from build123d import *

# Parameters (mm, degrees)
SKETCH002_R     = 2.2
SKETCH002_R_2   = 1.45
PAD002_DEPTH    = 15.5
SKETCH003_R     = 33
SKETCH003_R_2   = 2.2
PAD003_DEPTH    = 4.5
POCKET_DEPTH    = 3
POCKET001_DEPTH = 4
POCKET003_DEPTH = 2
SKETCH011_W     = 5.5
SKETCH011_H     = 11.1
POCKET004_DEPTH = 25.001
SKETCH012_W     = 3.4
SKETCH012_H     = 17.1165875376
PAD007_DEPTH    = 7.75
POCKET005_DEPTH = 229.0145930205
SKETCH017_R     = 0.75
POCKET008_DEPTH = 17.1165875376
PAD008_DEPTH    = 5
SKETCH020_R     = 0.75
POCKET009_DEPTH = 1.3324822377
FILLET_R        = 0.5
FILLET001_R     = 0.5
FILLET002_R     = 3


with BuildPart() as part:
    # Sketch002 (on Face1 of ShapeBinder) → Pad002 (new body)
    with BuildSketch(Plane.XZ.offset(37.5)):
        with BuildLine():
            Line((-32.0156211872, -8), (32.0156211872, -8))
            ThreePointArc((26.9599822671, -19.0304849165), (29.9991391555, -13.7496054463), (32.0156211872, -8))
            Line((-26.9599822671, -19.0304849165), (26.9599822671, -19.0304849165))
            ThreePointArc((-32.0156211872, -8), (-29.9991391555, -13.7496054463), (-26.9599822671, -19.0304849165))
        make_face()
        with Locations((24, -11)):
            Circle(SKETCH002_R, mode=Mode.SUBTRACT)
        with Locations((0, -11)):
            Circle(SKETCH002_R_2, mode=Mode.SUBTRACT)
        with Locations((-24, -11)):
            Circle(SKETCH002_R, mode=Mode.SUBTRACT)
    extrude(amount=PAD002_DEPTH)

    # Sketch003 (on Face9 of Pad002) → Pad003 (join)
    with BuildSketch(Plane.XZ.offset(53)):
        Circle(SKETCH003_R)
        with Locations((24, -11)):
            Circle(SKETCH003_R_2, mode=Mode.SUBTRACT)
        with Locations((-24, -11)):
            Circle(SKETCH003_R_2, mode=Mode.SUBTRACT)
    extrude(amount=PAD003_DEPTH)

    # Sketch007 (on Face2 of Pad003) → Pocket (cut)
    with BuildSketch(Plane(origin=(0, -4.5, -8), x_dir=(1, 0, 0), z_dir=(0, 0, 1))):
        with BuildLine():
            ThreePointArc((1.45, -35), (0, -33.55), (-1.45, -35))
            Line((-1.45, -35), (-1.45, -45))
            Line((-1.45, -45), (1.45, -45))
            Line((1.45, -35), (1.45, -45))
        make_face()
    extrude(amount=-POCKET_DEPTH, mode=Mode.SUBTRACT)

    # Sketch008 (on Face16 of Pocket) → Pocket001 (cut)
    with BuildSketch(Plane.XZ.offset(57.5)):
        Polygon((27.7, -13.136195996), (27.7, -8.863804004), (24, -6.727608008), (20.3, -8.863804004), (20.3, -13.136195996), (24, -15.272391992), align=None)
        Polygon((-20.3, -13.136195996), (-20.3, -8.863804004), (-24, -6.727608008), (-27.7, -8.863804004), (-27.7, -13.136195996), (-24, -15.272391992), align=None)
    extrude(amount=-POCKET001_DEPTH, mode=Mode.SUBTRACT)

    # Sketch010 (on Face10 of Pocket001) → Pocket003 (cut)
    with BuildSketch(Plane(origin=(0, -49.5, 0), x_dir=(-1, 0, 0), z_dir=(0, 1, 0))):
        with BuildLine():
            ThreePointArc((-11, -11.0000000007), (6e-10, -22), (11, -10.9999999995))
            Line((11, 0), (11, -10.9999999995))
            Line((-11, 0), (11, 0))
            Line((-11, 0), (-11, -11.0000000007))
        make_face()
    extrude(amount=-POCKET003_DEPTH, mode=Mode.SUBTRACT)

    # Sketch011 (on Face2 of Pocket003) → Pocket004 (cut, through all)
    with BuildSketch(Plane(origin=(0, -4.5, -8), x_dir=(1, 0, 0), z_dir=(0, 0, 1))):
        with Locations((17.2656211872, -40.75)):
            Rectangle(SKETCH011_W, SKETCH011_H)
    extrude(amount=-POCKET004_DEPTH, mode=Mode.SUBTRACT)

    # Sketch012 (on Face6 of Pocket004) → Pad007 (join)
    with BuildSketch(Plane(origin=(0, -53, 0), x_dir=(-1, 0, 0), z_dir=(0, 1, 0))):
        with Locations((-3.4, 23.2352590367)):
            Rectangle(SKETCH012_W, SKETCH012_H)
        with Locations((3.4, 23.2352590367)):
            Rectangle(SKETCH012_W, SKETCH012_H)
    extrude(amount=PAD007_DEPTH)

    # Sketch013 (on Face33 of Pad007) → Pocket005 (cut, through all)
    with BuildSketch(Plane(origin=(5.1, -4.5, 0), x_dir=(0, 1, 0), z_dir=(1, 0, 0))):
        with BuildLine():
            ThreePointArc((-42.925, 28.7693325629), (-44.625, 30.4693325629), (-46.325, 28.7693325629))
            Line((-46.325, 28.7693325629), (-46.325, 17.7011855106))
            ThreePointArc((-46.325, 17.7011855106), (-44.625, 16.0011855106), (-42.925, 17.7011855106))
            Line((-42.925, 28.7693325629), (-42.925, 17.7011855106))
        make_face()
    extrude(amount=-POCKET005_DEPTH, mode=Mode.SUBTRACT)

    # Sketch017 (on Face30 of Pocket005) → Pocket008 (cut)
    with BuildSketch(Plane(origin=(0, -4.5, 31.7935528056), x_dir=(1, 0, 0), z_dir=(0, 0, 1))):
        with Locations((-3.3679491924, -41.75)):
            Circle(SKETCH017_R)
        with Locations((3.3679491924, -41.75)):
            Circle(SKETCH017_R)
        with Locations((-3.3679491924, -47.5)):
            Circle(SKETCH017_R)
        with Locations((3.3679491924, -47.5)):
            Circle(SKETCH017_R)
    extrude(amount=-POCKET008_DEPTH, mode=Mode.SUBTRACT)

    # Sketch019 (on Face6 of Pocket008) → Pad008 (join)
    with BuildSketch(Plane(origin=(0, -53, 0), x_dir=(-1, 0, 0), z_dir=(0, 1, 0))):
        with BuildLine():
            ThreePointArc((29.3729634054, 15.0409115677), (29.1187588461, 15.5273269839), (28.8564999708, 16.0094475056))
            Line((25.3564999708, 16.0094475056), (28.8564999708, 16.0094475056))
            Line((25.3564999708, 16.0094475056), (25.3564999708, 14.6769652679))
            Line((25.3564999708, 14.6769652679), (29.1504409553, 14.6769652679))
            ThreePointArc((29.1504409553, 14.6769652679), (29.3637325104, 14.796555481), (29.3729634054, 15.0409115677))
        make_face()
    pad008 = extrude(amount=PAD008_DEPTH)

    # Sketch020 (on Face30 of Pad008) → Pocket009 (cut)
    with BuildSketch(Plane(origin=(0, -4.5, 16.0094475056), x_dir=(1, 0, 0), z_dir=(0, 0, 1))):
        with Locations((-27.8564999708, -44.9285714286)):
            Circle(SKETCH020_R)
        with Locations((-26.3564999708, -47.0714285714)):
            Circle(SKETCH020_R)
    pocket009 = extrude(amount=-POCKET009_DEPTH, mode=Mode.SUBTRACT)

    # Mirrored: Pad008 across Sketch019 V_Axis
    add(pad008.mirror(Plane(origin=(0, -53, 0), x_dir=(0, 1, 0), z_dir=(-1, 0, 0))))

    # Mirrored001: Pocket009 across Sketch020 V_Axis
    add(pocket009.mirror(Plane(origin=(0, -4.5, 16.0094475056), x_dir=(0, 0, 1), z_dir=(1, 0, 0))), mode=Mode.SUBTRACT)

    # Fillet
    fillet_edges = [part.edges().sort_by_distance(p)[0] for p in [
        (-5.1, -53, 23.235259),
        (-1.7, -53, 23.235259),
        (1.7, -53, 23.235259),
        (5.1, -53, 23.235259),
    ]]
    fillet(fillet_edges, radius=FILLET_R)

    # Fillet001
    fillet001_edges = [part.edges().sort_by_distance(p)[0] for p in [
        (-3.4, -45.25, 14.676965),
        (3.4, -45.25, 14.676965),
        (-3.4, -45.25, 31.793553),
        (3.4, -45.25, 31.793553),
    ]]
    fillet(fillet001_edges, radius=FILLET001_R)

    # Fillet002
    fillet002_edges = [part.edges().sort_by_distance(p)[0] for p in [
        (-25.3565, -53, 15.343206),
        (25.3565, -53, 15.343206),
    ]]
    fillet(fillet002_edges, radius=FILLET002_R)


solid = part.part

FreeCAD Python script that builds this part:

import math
import FreeCAD as App
import Part
import Sketcher
Q = App.Units.Quantity


def edges_at(feature, points):
    """Names of the edges that pass closest to the given points."""
    edges = feature.Shape.Edges
    near = lambda p: min(range(len(edges)), key=lambda i: edges[i].distToShape(Part.Vertex(*p))[0])
    return sorted({f"Edge{near(p) + 1}" for p in points})


def add_polygon(sketch, points):
    """Adds a closed chain of lines whose ends are joined by coincident constraints."""
    first, n = sketch.GeometryCount, len(points)
    for a, b in zip(points, points[1:] + points[:1]):
        sketch.addGeometry(Part.LineSegment(App.Vector(*a, 0), App.Vector(*b, 0)), False)
    for i in range(n):
        sketch.addConstraint(Sketcher.Constraint("Coincident", first + i, 2, first + (i + 1) % n, 1))

doc = App.newDocument("Part")
body = doc.addObject("PartDesign::Body", "Body")

sketch1 = body.newObject("Sketcher::SketchObject", "Sketch")
sketch1.AttachmentSupport = (doc.getObject("XZ_Plane"), [""])
sketch1.MapMode = "FlatFace"
sketch1.AttachmentOffset = App.Placement(App.Vector(0, 0, 37.5), App.Rotation())
sketch1.addGeometry(Part.LineSegment(App.Vector(32, -8, 0), App.Vector(-32, -8, 0)), False)
sketch1.addGeometry(Part.ArcOfCircle(Part.Circle(App.Vector(0, 0, 0), App.Vector(0, 0, 1), 33), math.radians(-166), math.radians(-145)), False)
sketch1.addGeometry(Part.LineSegment(App.Vector(-27, -19, 0), App.Vector(27, -19, 0)), False)
sketch1.addGeometry(Part.ArcOfCircle(Part.Circle(App.Vector(0, 0, 0), App.Vector(0, 0, 1), 33), math.radians(-35), math.radians(-14)), False)
sketch1.addGeometry(Part.Circle(App.Vector(24, -11, 0), App.Vector(0, 0, 1), 2.2), False)
sketch1.addGeometry(Part.Circle(App.Vector(0, -11, 0), App.Vector(0, 0, 1), 1.4), False)
sketch1.addGeometry(Part.Circle(App.Vector(-24, -11, 0), App.Vector(0, 0, 1), 2.2), False)
sketch1.addConstraint(Sketcher.Constraint("Coincident", 0, 2, 1, 1))
sketch1.addConstraint(Sketcher.Constraint("Coincident", 1, 2, 2, 1))
sketch1.addConstraint(Sketcher.Constraint("Coincident", 2, 2, 3, 1))
sketch1.addConstraint(Sketcher.Constraint("Coincident", 3, 2, 0, 1))
sketch1.addConstraint(Sketcher.Constraint("Horizontal", 0))
sketch1.addConstraint(Sketcher.Constraint("Horizontal", 2))
sketch1.addConstraint(Sketcher.Constraint("Coincident", 1, 3, -1, 1))
sketch1.addConstraint(Sketcher.Constraint("Coincident", 3, 3, -1, 1))
sketch1.addConstraint(Sketcher.Constraint("Equal", 1, 3))
sketch1.addConstraint(Sketcher.Constraint("Equal", 4, 6))
sketch1.addConstraint(Sketcher.Constraint("Symmetric", 4, 3, 6, 3, -2))
sketch1.addConstraint(Sketcher.Constraint("PointOnObject", 5, 3, -2))
sketch1.addConstraint(Sketcher.Constraint("Horizontal", 4, 3, 5, 3))
sketch1.addConstraint(Sketcher.Constraint("Radius", 1, Q("33 mm")))
sketch1.addConstraint(Sketcher.Constraint("Diameter", 4, Q("4.4 mm")))
sketch1.addConstraint(Sketcher.Constraint("Diameter", 5, Q("2.9 mm")))
sketch1.addConstraint(Sketcher.Constraint("DistanceX", -1, 1, 4, 3, Q("24 mm")))
sketch1.addConstraint(Sketcher.Constraint("DistanceY", 4, 3, -1, 1, Q("11 mm")))
sketch1.addConstraint(Sketcher.Constraint("DistanceY", 0, 2, -1, 1, Q("8 mm")))
sketch1.addConstraint(Sketcher.Constraint("DistanceX", 2, 1, 2, 2, Q("53.919965 mm")))
pad1 = body.newObject("PartDesign::Pad", "Pad")
pad1.Profile = sketch1
pad1.Length = 15.5

sketch2 = body.newObject("Sketcher::SketchObject", "Sketch001")
sketch2.AttachmentSupport = (doc.getObject("XZ_Plane"), [""])
sketch2.MapMode = "FlatFace"
sketch2.AttachmentOffset = App.Placement(App.Vector(0, 0, 53), App.Rotation())
sketch2.addGeometry(Part.Circle(App.Vector(0, 0, 0), App.Vector(0, 0, 1), 33), False)
sketch2.addGeometry(Part.Circle(App.Vector(-24, -11, 0), App.Vector(0, 0, 1), 2.2), False)
sketch2.addGeometry(Part.Circle(App.Vector(24, -11, 0), App.Vector(0, 0, 1), 2.2), False)
sketch2.addConstraint(Sketcher.Constraint("Coincident", 0, 3, -1, 1))
sketch2.addConstraint(Sketcher.Constraint("Equal", 1, 2))
sketch2.addConstraint(Sketcher.Constraint("Symmetric", 1, 3, 2, 3, -2))
sketch2.addConstraint(Sketcher.Constraint("Diameter", 0, Q("66 mm")))
sketch2.addConstraint(Sketcher.Constraint("Diameter", 1, Q("4.4 mm")))
sketch2.addConstraint(Sketcher.Constraint("DistanceX", 1, 3, -1, 1, Q("24 mm")))
sketch2.addConstraint(Sketcher.Constraint("DistanceY", 1, 3, -1, 1, Q("11 mm")))
pad2 = body.newObject("PartDesign::Pad", "Pad001")
pad2.Profile = sketch2
pad2.Length = 4.5

sketch3 = body.newObject("Sketcher::SketchObject", "Sketch002")
sketch3.AttachmentSupport = (doc.getObject("XY_Plane"), [""])
sketch3.MapMode = "FlatFace"
sketch3.AttachmentOffset = App.Placement(App.Vector(0, 0, -8), App.Rotation())
sketch3.addGeometry(Part.ArcOfCircle(Part.Circle(App.Vector(0, -39.5, 0), App.Vector(0, 0, 1), 1.4), math.radians(0), math.radians(180)), False)
sketch3.addGeometry(Part.LineSegment(App.Vector(-1.4, -39.5, 0), App.Vector(-1.4, -49.5, 0)), False)
sketch3.addGeometry(Part.LineSegment(App.Vector(-1.4, -49.5, 0), App.Vector(1.4, -49.5, 0)), False)
sketch3.addGeometry(Part.LineSegment(App.Vector(1.4, -49.5, 0), App.Vector(1.4, -39.5, 0)), False)
sketch3.addConstraint(Sketcher.Constraint("Tangent", 0, 2, 1, 1))
sketch3.addConstraint(Sketcher.Constraint("Coincident", 1, 2, 2, 1))
sketch3.addConstraint(Sketcher.Constraint("Coincident", 2, 2, 3, 1))
sketch3.addConstraint(Sketcher.Constraint("Tangent", 3, 2, 0, 1))
sketch3.addConstraint(Sketcher.Constraint("Vertical", 1))
sketch3.addConstraint(Sketcher.Constraint("Horizontal", 2))
sketch3.addConstraint(Sketcher.Constraint("Vertical", 3))
sketch3.addConstraint(Sketcher.Constraint("PointOnObject", 0, 3, -2))
sketch3.addConstraint(Sketcher.Constraint("DistanceY", 1, 2, 1, 1, Q("10 mm")))
sketch3.addConstraint(Sketcher.Constraint("Radius", 0, Q("1.45 mm")))
sketch3.addConstraint(Sketcher.Constraint("DistanceY", 0, 3, -1, 1, Q("39.5 mm")))
pocket1 = body.newObject("PartDesign::Pocket", "Pocket")
pocket1.Profile = sketch3
pocket1.Length = 3

sketch4 = body.newObject("Sketcher::SketchObject", "Sketch003")
sketch4.AttachmentSupport = (doc.getObject("XZ_Plane"), [""])
sketch4.MapMode = "FlatFace"
sketch4.AttachmentOffset = App.Placement(App.Vector(0, 0, 57.5), App.Rotation())
add_polygon(sketch4, [(27.7, -13.1), (27.7, -8.9), (24, -6.7), (20.3, -8.9), (20.3, -13.1), (24, -15.3)])
add_polygon(sketch4, [(-20.3, -13.1), (-20.3, -8.9), (-24, -6.7), (-27.7, -8.9), (-27.7, -13.1), (-24, -15.3)])
sketch4.addConstraint(Sketcher.Constraint("Vertical", 0))
sketch4.addConstraint(Sketcher.Constraint("Vertical", 3))
sketch4.addConstraint(Sketcher.Constraint("Vertical", 6))
sketch4.addConstraint(Sketcher.Constraint("Vertical", 9))
sketch4.addConstraint(Sketcher.Constraint("Symmetric", 2, 2, 6, 2, -2))
sketch4.addConstraint(Sketcher.Constraint("Symmetric", 1, 2, 7, 2, -2))
sketch4.addConstraint(Sketcher.Constraint("Symmetric", 0, 2, 8, 2, -2))
sketch4.addConstraint(Sketcher.Constraint("Symmetric", 4, 2, 10, 2, -2))
sketch4.addConstraint(Sketcher.Constraint("Parallel", 1, 4))
sketch4.addConstraint(Sketcher.Constraint("Parallel", 2, 5))
sketch4.addConstraint(Sketcher.Constraint("Parallel", 4, 7))
sketch4.addConstraint(Sketcher.Constraint("Parallel", 7, 10))
sketch4.addConstraint(Sketcher.Constraint("Parallel", 8, 11))
sketch4.addConstraint(Sketcher.Constraint("Horizontal", 0, 2, 2, 2))
sketch4.addConstraint(Sketcher.Constraint("Horizontal", 3, 2, 5, 2))
sketch4.addConstraint(Sketcher.Constraint("Angle", 1, Q("150 deg")))
sketch4.addConstraint(Sketcher.Constraint("DistanceX", -1, 1, 1, 2, Q("24 mm")))
sketch4.addConstraint(Sketcher.Constraint("DistanceX", -1, 1, 0, 2, Q("27.7 mm")))
sketch4.addConstraint(Sketcher.Constraint("DistanceY", 0, 1, 0, 2, Q("4.272392 mm")))
sketch4.addConstraint(Sketcher.Constraint("DistanceY", 1, 2, -1, 1, Q("6.727608 mm")))
pocket2 = body.newObject("PartDesign::Pocket", "Pocket001")
pocket2.Profile = sketch4
pocket2.Length = 4

sketch5 = body.newObject("Sketcher::SketchObject", "Sketch004")
sketch5.AttachmentSupport = (doc.getObject("XZ_Plane"), [""])
sketch5.MapMode = "FlatFace"
sketch5.AttachmentOffset = App.Placement(App.Vector(0, 0, 49.5), App.Rotation())
sketch5.addGeometry(Part.ArcOfCircle(Part.Circle(App.Vector(0, -11, 0), App.Vector(0, 0, 1), 11), math.radians(180), math.radians(360)), False)
sketch5.addGeometry(Part.LineSegment(App.Vector(-11, -11, 0), App.Vector(-11, 0, 0)), False)
sketch5.addGeometry(Part.LineSegment(App.Vector(-11, 0, 0), App.Vector(11, 0, 0)), False)
sketch5.addGeometry(Part.LineSegment(App.Vector(11, 0, 0), App.Vector(11, -11, 0)), False)
sketch5.addConstraint(Sketcher.Constraint("Tangent", 0, 1, 1, 1))
sketch5.addConstraint(Sketcher.Constraint("Coincident", 1, 2, 2, 1))
sketch5.addConstraint(Sketcher.Constraint("Coincident", 2, 2, 3, 1))
sketch5.addConstraint(Sketcher.Constraint("Tangent", 3, 2, 0, 2))
sketch5.addConstraint(Sketcher.Constraint("Vertical", 1))
sketch5.addConstraint(Sketcher.Constraint("Horizontal", 2))
sketch5.addConstraint(Sketcher.Constraint("Vertical", 3))
sketch5.addConstraint(Sketcher.Constraint("Symmetric", 1, 2, 2, 2, -1, 1))
sketch5.addConstraint(Sketcher.Constraint("Radius", 0, Q("11 mm")))
sketch5.addConstraint(Sketcher.Constraint("DistanceY", 1, 1, 1, 2, Q("11 mm")))
pocket3 = body.newObject("PartDesign::Pocket", "Pocket002")
pocket3.Profile = sketch5
pocket3.Length = 2
pocket3.Reversed = True

sketch6 = body.newObject("Sketcher::SketchObject", "Sketch005")
sketch6.AttachmentSupport = (doc.getObject("XY_Plane"), [""])
sketch6.MapMode = "FlatFace"
sketch6.AttachmentOffset = App.Placement(App.Vector(0, 0, -8), App.Rotation())
add_polygon(sketch6, [(15, -40), (15, -51), (20, -51), (20, -40)])
sketch6.addConstraint(Sketcher.Constraint("Vertical", 0))
sketch6.addConstraint(Sketcher.Constraint("Horizontal", 1))
sketch6.addConstraint(Sketcher.Constraint("Vertical", 2))
sketch6.addConstraint(Sketcher.Constraint("Horizontal", 3))
sketch6.addConstraint(Sketcher.Constraint("DistanceX", 1, 1, 1, 2, Q("5.5 mm")))
sketch6.addConstraint(Sketcher.Constraint("DistanceY", 0, 2, 0, 1, Q("11.1 mm")))
sketch6.addConstraint(Sketcher.Constraint("DistanceY", 0, 2, -1, 1, Q("50.8 mm")))
sketch6.addConstraint(Sketcher.Constraint("DistanceX", -1, 1, 0, 2, Q("14.515621 mm")))
pocket4 = body.newObject("PartDesign::Pocket", "Pocket003")
pocket4.Profile = sketch6
pocket4.Type = "ThroughAll"

sketch7 = body.newObject("Sketcher::SketchObject", "Sketch006")
sketch7.AttachmentSupport = (doc.getObject("XZ_Plane"), [""])
sketch7.MapMode = "FlatFace"
sketch7.AttachmentOffset = App.Placement(App.Vector(0, 0, 53), App.Rotation())
add_polygon(sketch7, [(5.1, 31.8), (5.1, 14.7), (1.7, 14.7), (1.7, 31.8)])
add_polygon(sketch7, [(-1.7, 31.8), (-1.7, 14.7), (-5.1, 14.7), (-5.1, 31.8)])
sketch7.addConstraint(Sketcher.Constraint("Vertical", 0))
sketch7.addConstraint(Sketcher.Constraint("Horizontal", 1))
sketch7.addConstraint(Sketcher.Constraint("Vertical", 2))
sketch7.addConstraint(Sketcher.Constraint("Horizontal", 3))
sketch7.addConstraint(Sketcher.Constraint("Vertical", 4))
sketch7.addConstraint(Sketcher.Constraint("Horizontal", 5))
sketch7.addConstraint(Sketcher.Constraint("Vertical", 6))
sketch7.addConstraint(Sketcher.Constraint("Horizontal", 7))
sketch7.addConstraint(Sketcher.Constraint("Symmetric", 1, 2, 4, 2, -2))
sketch7.addConstraint(Sketcher.Constraint("Symmetric", 3, 2, 6, 2, -2))
sketch7.addConstraint(Sketcher.Constraint("DistanceX", 1, 2, 1, 1, Q("3.4 mm")))
sketch7.addConstraint(Sketcher.Constraint("DistanceX", -1, 1, 0, 2, Q("5.1 mm")))
sketch7.addConstraint(Sketcher.Constraint("DistanceY", 0, 2, 0, 1, Q("17.116588 mm")))
sketch7.addConstraint(Sketcher.Constraint("DistanceY", -1, 1, 0, 2, Q("14.676965 mm")))
pad3 = body.newObject("PartDesign::Pad", "Pad002")
pad3.Profile = sketch7
pad3.Length = 7.75
pad3.Reversed = True

sketch8 = body.newObject("Sketcher::SketchObject", "Sketch007")
sketch8.AttachmentSupport = (doc.getObject("YZ_Plane"), [""])
sketch8.MapMode = "FlatFace"
sketch8.AttachmentOffset = App.Placement(App.Vector(0, 0, 5.1), App.Rotation())
sketch8.addGeometry(Part.ArcOfCircle(Part.Circle(App.Vector(-49.1, 28.8, 0), App.Vector(0, 0, 1), 1.7), math.radians(0), math.radians(180)), False)
sketch8.addGeometry(Part.LineSegment(App.Vector(-50.8, 28.8, 0), App.Vector(-50.8, 17.7, 0)), False)
sketch8.addGeometry(Part.ArcOfCircle(Part.Circle(App.Vector(-49.1, 17.7, 0), App.Vector(0, 0, 1), 1.7), math.radians(180), math.radians(360)), False)
sketch8.addGeometry(Part.LineSegment(App.Vector(-47.4, 17.7, 0), App.Vector(-47.4, 28.8, 0)), False)
sketch8.addConstraint(Sketcher.Constraint("Tangent", 0, 2, 1, 1))
sketch8.addConstraint(Sketcher.Constraint("Tangent", 1, 2, 2, 1))
sketch8.addConstraint(Sketcher.Constraint("Tangent", 2, 2, 3, 1))
sketch8.addConstraint(Sketcher.Constraint("Tangent", 3, 2, 0, 1))
sketch8.addConstraint(Sketcher.Constraint("Vertical", 1))
sketch8.addConstraint(Sketcher.Constraint("Vertical", 3))
sketch8.addConstraint(Sketcher.Constraint("Radius", 0, Q("1.7 mm")))
sketch8.addConstraint(Sketcher.Constraint("DistanceX", 0, 3, -1, 1, Q("49.125 mm")))
sketch8.addConstraint(Sketcher.Constraint("DistanceY", 1, 2, 1, 1, Q("11.068147 mm")))
sketch8.addConstraint(Sketcher.Constraint("DistanceY", -1, 1, 0, 3, Q("28.769333 mm")))
pocket5 = body.newObject("PartDesign::Pocket", "Pocket004")
pocket5.Profile = sketch8
pocket5.Type = "ThroughAll"

sketch9 = body.newObject("Sketcher::SketchObject", "Sketch008")
sketch9.AttachmentSupport = (doc.getObject("XY_Plane"), [""])
sketch9.MapMode = "FlatFace"
sketch9.AttachmentOffset = App.Placement(App.Vector(0, 0, 31.793553), App.Rotation())
sketch9.addGeometry(Part.Circle(App.Vector(-3.4, -46.2, 0), App.Vector(0, 0, 1), 0.8), False)
sketch9.addGeometry(Part.Circle(App.Vector(3.4, -46.2, 0), App.Vector(0, 0, 1), 0.8), False)
sketch9.addGeometry(Part.Circle(App.Vector(-3.4, -52, 0), App.Vector(0, 0, 1), 0.8), False)
sketch9.addGeometry(Part.Circle(App.Vector(3.4, -52, 0), App.Vector(0, 0, 1), 0.8), False)
sketch9.addConstraint(Sketcher.Constraint("Equal", 0, 1))
sketch9.addConstraint(Sketcher.Constraint("Equal", 1, 2))
sketch9.addConstraint(Sketcher.Constraint("Equal", 2, 3))
sketch9.addConstraint(Sketcher.Constraint("Symmetric", 0, 3, 1, 3, -2))
sketch9.addConstraint(Sketcher.Constraint("Symmetric", 2, 3, 3, 3, -2))
sketch9.addConstraint(Sketcher.Constraint("Vertical", 0, 3, 2, 3))
sketch9.addConstraint(Sketcher.Constraint("Diameter", 0, Q("1.5 mm")))
sketch9.addConstraint(Sketcher.Constraint("DistanceY", 2, 3, -1, 1, Q("52 mm")))
sketch9.addConstraint(Sketcher.Constraint("DistanceY", 0, 3, -1, 1, Q("46.25 mm")))
sketch9.addConstraint(Sketcher.Constraint("DistanceX", 0, 3, 1, 3, Q("6.735898 mm")))
pocket6 = body.newObject("PartDesign::Pocket", "Pocket005")
pocket6.Profile = sketch9
pocket6.Length = 17.116588

sketch10 = body.newObject("Sketcher::SketchObject", "Sketch009")
sketch10.AttachmentSupport = (doc.getObject("XZ_Plane"), [""])
sketch10.MapMode = "FlatFace"
sketch10.AttachmentOffset = App.Placement(App.Vector(0, 0, 53), App.Rotation())
sketch10.addGeometry(Part.ArcOfCircle(Part.Circle(App.Vector(0, 0, 0), App.Vector(0, 0, 1), 33), math.radians(150.98), math.radians(152.88)), False)
sketch10.addGeometry(Part.LineSegment(App.Vector(-28.86, 16.01, 0), App.Vector(-25.36, 16.01, 0)), False)
sketch10.addGeometry(Part.LineSegment(App.Vector(-25.36, 16.01, 0), App.Vector(-25.36, 14.68, 0)), False)
sketch10.addGeometry(Part.LineSegment(App.Vector(-25.36, 14.68, 0), App.Vector(-29.15, 14.68, 0)), False)
sketch10.addGeometry(Part.ArcOfCircle(Part.Circle(App.Vector(-29.15, 14.93, 0), App.Vector(0, 0, 1), 0.25), math.radians(153), math.radians(270)), False)
sketch10.addConstraint(Sketcher.Constraint("Coincident", 0, 1, 1, 1))
sketch10.addConstraint(Sketcher.Constraint("Coincident", 1, 2, 2, 1))
sketch10.addConstraint(Sketcher.Constraint("Coincident", 2, 2, 3, 1))
sketch10.addConstraint(Sketcher.Constraint("Tangent", 3, 2, 4, 2))
sketch10.addConstraint(Sketcher.Constraint("Tangent", 4, 1, 0, 2))
sketch10.addConstraint(Sketcher.Constraint("Horizontal", 1))
sketch10.addConstraint(Sketcher.Constraint("Vertical", 2))
sketch10.addConstraint(Sketcher.Constraint("Horizontal", 3))
sketch10.addConstraint(Sketcher.Constraint("Coincident", 0, 3, -1, 1))
sketch10.addConstraint(Sketcher.Constraint("Radius", 0, Q("33 mm")))
sketch10.addConstraint(Sketcher.Constraint("Radius", 4, Q("0.25 mm")))
sketch10.addConstraint(Sketcher.Constraint("DistanceX", 1, 1, 1, 2, Q("3.5 mm")))
sketch10.addConstraint(Sketcher.Constraint("DistanceX", 3, 2, 3, 1, Q("3.793941 mm")))
sketch10.addConstraint(Sketcher.Constraint("DistanceX", 0, 1, -1, 1, Q("28.8565 mm")))
pad4 = body.newObject("PartDesign::Pad", "Pad003")
pad4.Profile = sketch10
pad4.Length = 5
pad4.Reversed = True

sketch11 = body.newObject("Sketcher::SketchObject", "Sketch010")
sketch11.AttachmentSupport = (doc.getObject("XY_Plane"), [""])
sketch11.MapMode = "FlatFace"
sketch11.AttachmentOffset = App.Placement(App.Vector(0, 0, 16.009448), App.Rotation())
sketch11.addGeometry(Part.Circle(App.Vector(-27.9, -49.4, 0), App.Vector(0, 0, 1), 0.8), False)
sketch11.addGeometry(Part.Circle(App.Vector(-26.4, -51.6, 0), App.Vector(0, 0, 1), 0.8), False)
sketch11.addConstraint(Sketcher.Constraint("Equal", 0, 1))
sketch11.addConstraint(Sketcher.Constraint("Diameter", 0, Q("1.5 mm")))
sketch11.addConstraint(Sketcher.Constraint("DistanceX", 0, 3, 1, 3, Q("1.5 mm")))
sketch11.addConstraint(Sketcher.Constraint("DistanceX", 0, 3, -1, 1, Q("27.8565 mm")))
sketch11.addConstraint(Sketcher.Constraint("DistanceY", 0, 3, -1, 1, Q("49.428571 mm")))
sketch11.addConstraint(Sketcher.Constraint("DistanceY", 1, 3, -1, 1, Q("51.571429 mm")))
pocket7 = body.newObject("PartDesign::Pocket", "Pocket006")
pocket7.Profile = sketch11
pocket7.Length = 1.332482
doc.recompute()

mirrored = body.newObject("PartDesign::Mirrored", "Mirrored")
mirrored.Originals = [pad4]
mirrored.MirrorPlane = (doc.getObject("YZ_Plane"), [""])
body.Tip = mirrored
doc.recompute()

mirrored2 = body.newObject("PartDesign::Mirrored", "Mirrored001")
mirrored2.Originals = [pocket7]
mirrored2.MirrorPlane = (doc.getObject("YZ_Plane"), [""])
body.Tip = mirrored2
doc.recompute()

fillet = body.newObject("PartDesign::Fillet", "Fillet")
fillet.Base = (mirrored2, edges_at(mirrored2, [
    (-5.1, -53, 23.235),
    (-1.7, -53, 23.235),
    (1.7, -53, 23.235),
    (5.1, -53, 23.235),
]))
fillet.Radius = 0.5
doc.recompute()

fillet2 = body.newObject("PartDesign::Fillet", "Fillet001")
fillet2.Base = (fillet, edges_at(fillet, [
    (-3.4, -45.25, 14.677),
    (3.4, -45.25, 14.677),
    (-3.4, -45.25, 31.794),
    (3.4, -45.25, 31.794),
]))
fillet2.Radius = 0.5
doc.recompute()

fillet3 = body.newObject("PartDesign::Fillet", "Fillet002")
fillet3.Base = (fillet2, edges_at(fillet2, [(-25.356, -53, 15.343), (25.356, -53, 15.343)]))
fillet3.Radius = 3

doc.recompute()
